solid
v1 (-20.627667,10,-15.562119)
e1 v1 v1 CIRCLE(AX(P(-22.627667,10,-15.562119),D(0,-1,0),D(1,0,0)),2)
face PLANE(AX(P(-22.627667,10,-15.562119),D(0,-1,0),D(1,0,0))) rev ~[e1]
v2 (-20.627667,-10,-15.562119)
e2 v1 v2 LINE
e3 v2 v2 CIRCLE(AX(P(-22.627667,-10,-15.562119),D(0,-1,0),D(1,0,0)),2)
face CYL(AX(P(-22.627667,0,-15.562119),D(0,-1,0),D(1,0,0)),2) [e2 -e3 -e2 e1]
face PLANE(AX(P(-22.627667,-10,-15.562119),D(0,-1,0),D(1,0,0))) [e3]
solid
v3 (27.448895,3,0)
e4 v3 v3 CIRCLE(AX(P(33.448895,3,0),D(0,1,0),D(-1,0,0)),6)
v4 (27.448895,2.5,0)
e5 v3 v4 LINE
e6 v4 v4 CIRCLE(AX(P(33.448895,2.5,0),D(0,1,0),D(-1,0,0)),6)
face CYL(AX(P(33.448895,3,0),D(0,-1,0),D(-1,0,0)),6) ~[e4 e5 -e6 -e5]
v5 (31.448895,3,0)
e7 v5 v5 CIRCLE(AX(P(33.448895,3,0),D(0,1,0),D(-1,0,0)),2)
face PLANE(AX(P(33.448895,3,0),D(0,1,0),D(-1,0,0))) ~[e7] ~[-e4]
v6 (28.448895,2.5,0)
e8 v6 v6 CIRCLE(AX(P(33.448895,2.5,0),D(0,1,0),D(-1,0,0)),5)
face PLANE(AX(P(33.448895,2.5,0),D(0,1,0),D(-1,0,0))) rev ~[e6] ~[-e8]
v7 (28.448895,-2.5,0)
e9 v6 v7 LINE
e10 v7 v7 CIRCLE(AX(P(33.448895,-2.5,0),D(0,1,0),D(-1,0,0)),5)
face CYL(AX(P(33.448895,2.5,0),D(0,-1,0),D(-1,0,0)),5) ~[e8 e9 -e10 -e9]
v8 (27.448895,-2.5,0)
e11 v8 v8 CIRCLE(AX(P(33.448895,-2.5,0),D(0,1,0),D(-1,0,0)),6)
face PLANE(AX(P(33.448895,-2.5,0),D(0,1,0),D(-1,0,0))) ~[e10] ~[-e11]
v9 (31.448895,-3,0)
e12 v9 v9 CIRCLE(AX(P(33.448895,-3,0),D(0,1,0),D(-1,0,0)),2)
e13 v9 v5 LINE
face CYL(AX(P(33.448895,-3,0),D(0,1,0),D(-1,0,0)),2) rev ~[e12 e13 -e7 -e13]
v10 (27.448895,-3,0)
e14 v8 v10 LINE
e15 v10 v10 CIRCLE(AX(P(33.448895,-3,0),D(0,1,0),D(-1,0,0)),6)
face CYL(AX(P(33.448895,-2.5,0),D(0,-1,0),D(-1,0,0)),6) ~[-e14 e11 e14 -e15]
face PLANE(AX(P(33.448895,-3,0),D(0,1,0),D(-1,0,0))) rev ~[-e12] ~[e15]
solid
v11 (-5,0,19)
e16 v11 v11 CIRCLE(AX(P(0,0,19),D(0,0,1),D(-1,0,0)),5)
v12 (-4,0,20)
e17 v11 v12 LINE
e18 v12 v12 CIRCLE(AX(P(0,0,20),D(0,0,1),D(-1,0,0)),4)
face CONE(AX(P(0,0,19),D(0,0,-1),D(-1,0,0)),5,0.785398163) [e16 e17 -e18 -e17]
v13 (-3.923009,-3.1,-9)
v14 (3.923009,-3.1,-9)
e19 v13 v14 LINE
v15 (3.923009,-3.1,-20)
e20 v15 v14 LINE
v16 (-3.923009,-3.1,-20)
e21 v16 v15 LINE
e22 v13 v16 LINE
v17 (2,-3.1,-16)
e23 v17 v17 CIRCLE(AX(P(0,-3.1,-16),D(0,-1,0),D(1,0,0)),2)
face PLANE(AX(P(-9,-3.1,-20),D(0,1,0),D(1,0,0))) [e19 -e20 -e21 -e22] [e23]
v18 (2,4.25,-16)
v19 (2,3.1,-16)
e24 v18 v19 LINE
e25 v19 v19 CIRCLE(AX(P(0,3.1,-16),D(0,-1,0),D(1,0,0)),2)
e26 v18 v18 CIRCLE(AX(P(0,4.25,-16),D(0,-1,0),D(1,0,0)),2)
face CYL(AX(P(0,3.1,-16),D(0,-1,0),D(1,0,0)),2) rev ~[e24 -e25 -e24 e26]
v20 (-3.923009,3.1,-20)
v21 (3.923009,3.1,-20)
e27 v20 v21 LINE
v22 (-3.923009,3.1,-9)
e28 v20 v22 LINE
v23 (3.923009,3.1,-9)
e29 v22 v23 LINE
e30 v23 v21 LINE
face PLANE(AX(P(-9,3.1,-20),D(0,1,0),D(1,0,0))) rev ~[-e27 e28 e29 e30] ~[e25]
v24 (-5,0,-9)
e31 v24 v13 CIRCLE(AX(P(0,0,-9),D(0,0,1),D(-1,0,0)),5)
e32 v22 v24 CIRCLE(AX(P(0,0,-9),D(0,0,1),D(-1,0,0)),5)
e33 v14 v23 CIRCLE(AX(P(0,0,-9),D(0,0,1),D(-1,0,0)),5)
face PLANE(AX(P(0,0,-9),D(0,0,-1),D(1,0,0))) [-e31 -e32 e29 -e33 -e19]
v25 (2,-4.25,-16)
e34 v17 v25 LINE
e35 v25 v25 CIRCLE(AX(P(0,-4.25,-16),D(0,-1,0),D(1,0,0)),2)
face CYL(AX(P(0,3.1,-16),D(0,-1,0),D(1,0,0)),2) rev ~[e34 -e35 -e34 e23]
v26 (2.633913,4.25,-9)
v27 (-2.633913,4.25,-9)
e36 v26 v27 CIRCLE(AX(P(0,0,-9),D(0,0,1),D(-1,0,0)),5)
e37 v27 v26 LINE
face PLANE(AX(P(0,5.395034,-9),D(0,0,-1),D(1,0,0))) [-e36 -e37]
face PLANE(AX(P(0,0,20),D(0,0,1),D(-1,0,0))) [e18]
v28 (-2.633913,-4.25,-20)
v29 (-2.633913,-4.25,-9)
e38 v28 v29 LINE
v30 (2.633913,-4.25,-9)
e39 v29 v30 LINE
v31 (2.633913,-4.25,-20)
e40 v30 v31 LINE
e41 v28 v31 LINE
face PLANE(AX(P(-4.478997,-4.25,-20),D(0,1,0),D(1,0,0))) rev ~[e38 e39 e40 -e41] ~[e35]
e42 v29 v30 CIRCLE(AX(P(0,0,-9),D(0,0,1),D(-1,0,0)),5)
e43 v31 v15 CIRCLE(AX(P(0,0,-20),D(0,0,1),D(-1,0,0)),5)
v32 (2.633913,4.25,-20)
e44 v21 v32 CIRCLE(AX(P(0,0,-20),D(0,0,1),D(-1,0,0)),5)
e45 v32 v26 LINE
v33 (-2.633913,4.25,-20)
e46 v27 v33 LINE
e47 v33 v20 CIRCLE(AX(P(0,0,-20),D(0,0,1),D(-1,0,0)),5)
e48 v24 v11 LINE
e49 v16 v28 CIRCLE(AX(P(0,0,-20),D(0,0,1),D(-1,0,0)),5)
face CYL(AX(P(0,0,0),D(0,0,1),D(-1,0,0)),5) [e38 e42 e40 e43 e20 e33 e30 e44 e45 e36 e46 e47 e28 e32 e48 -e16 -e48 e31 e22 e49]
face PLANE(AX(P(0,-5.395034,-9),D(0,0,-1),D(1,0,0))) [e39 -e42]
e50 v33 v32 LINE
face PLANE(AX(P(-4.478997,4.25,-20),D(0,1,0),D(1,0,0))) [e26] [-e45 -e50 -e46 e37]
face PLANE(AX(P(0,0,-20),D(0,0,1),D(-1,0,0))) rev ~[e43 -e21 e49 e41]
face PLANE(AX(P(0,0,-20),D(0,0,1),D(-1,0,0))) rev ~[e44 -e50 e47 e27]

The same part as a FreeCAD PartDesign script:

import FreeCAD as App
import Part
import Sketcher

V = App.Vector
Q = App.Units.Quantity


def edges_at(feature, points):
    """Names of the edges that pass closest to the given points."""
    edges = feature.Shape.Edges
    near = lambda p: min(range(len(edges)), key=lambda i: edges[i].distToShape(Part.Vertex(*p))[0])
    return sorted({f"Edge{near(p) + 1}" for p in points})


def add_polygon(sketch, points):
    """Adds a closed chain of lines whose ends are joined by coincident constraints."""
    first, n = sketch.GeometryCount, len(points)
    for a, b in zip(points, points[1:] + points[:1]):
        sketch.addGeometry(Part.LineSegment(App.Vector(*a, 0), App.Vector(*b, 0)), False)
    for i in range(n):
        sketch.addConstraint(Sketcher.Constraint("Coincident", first + i, 2, first + (i + 1) % n, 1))

doc = App.newDocument("Part")
params = doc.addObject("Spreadsheet::Sheet", "Params")
for row, (alias, value) in enumerate([
    ("sketch1_width", "5 mm"),
    ("sketch1_height", "40 mm"),
    ("revolution_angle", "360 deg"),
    ("sketch2_width", "18 mm"),
    ("sketch2_height", "6.2 mm"),
    ("pocket1_length", "11 mm"),
    ("sketch3_diameter", "4 mm"),
    ("pocket2_length", "25 mm"),
    ("chamfer_size", "1 mm"),
    ("sketch4_width", "18 mm"),
    ("sketch4_height", "6.2 mm"),
    ("pocket3_length", "10 mm"),
    ("sketch5_diameter", "4 mm"),
    ("pad1_length", "20 mm"),
    ("sketch6_width", "4 mm"),
    ("sketch6_width2", "1 mm"),
    ("sketch6_height", "6 mm"),
    ("sketch6_height2", "5 mm"),
    ("revolution2_angle", "360 deg"),
], start=1):
    params.set(f"A{row}", alias)
    params.set(f"B{row}", "=" + value)
    params.setAlias(f"B{row}", alias)

body = doc.addObject("PartDesign::Body", "Body")

# Sketch on XZ plane
sketch1 = doc.addObject("Sketcher::SketchObject", "Sketch")
body.addObject(sketch1)
sketch1.AttachmentSupport = (doc.XZ_Plane, [""])
sketch1.MapMode = "FlatFace"
add_polygon(sketch1, [(-5, 20), (-5, -20), (0, -20), (0, 20)])  # lines 0-3
sketch1.addConstraint([
    Sketcher.Constraint("Vertical", 0),
    Sketcher.Constraint("Horizontal", 1),
    Sketcher.Constraint("Vertical", 2),
    Sketcher.Constraint("Horizontal", 3),
    Sketcher.Constraint("Symmetric", 1, 2, 2, 2, -1, 1),
    Sketcher.Constraint("DistanceX", 1, 1, 1, 2, Q("5 mm")),
    Sketcher.Constraint("DistanceY", 0, 2, 0, 1, Q("40 mm")),
])
sketch1.setExpression("Constraints[9]", "Params.sketch1_width")
sketch1.setExpression("Constraints[10]", "Params.sketch1_height")
revolution = doc.addObject("PartDesign::Revolution", "Revolution")
body.addObject(revolution)
revolution.Profile = sketch1
revolution.ReferenceAxis = (sketch1, ["V_Axis"])
revolution.setExpression("Angle", "Params.revolution_angle")

# Sketch on XY plane
sketch2 = doc.addObject("Sketcher::SketchObject", "Sketch001")
body.addObject(sketch2)
sketch2.AttachmentSupport = (doc.XY_Plane, [""])
sketch2.MapMode = "FlatFace"
sketch2.AttachmentOffset = App.Placement(V(0, 0, -20), App.Rotation())
add_polygon(sketch2, [(-9, -3.1), (-9, 3.1), (9, 3.1), (9, -3.1)])  # lines 0-3
add_polygon(sketch2, [(-4.5, 4.2), (-4.5, 6.5), (4.5, 6.5), (4.5, 4.2)])  # lines 4-7
add_polygon(sketch2, [(-4.5, -6.5), (-4.5, -4.2), (4.5, -4.2), (4.5, -6.5)])  # lines 8-11
sketch2.addConstraint([
    Sketcher.Constraint("Vertical", 0),
    Sketcher.Constraint("Horizontal", 1),
    Sketcher.Constraint("Vertical", 2),
    Sketcher.Constraint("Horizontal", 3),
    Sketcher.Constraint("Vertical", 4),
    Sketcher.Constraint("Horizontal", 5),
    Sketcher.Constraint("Vertical", 6),
    Sketcher.Constraint("Horizontal", 7),
    Sketcher.Constraint("Vertical", 8),
    Sketcher.Constraint("Horizontal", 9),
    Sketcher.Constraint("Vertical", 10),
    Sketcher.Constraint("Horizontal", 11),
    Sketcher.Constraint("Symmetric", 0, 2, 2, 2, -1, 1),
    Sketcher.Constraint("Symmetric", 6, 2, 8, 2, -1, 1),
    Sketcher.Constraint("Symmetric", 4, 2, 10, 2, -1, 1),
    Sketcher.Constraint("Vertical", 7, 2, 8, 2),
    Sketcher.Constraint("DistanceX", 1, 1, 1, 2, Q("18 mm")),
    Sketcher.Constraint("DistanceY", 0, 1, 0, 2, Q("6.2 mm")),
    Sketcher.Constraint("DistanceY", 8, 2, 7, 2, Q("8.5 mm")),
    Sketcher.Constraint("DistanceX", 5, 1, 5, 2, Q("8.957994 mm")),
    Sketcher.Constraint("DistanceY", 4, 1, 4, 2, Q("2.290067 mm")),
])
sketch2.setExpression("Constraints[28]", "Params.sketch2_width")
sketch2.setExpression("Constraints[29]", "Params.sketch2_height")
pocket1 = doc.addObject("PartDesign::Pocket", "Pocket")
body.addObject(pocket1)
pocket1.Profile = sketch2
pocket1.setExpression("Length", "Params.pocket1_length")
pocket1.Reversed = True

# Sketch on XZ plane
sketch3 = doc.addObject("Sketcher::SketchObject", "Sketch002")
body.addObject(sketch3)
sketch3.AttachmentSupport = (doc.XZ_Plane, [""])
sketch3.MapMode = "FlatFace"
sketch3.AttachmentOffset = App.Placement(V(0, 0, -3.1), App.Rotation())
sketch3.addGeometry(Part.Circle(V(0, -16, 0), V(0, 0, 1), 2), False)
sketch3.addConstraint([
    Sketcher.Constraint("PointOnObject", 0, 3, -2),
    Sketcher.Constraint("Diameter", 0, Q("4 mm")),
    Sketcher.Constraint("DistanceY", 0, 3, -1, 1, Q("16 mm")),
])
sketch3.setExpression("Constraints[1]", "Params.sketch3_diameter")
pocket2 = doc.addObject("PartDesign::Pocket", "Pocket001")
body.addObject(pocket2)
pocket2.Profile = sketch3
pocket2.setExpression("Length", "Params.pocket2_length")
pocket2.Midplane = True
doc.recompute()

chamfer = doc.addObject("PartDesign::Chamfer", "Chamfer")
body.addObject(chamfer)
chamfer.Base = (pocket2, edges_at(pocket2, [(5, 0, 20)]))
chamfer.setExpression("Size", "Params.chamfer_size")

# Sketch on XY plane
sketch4 = doc.addObject("Sketcher::SketchObject", "Sketch003")
body.addObject(sketch4)
sketch4.AttachmentSupport = (doc.XY_Plane, [""])
sketch4.MapMode = "FlatFace"
sketch4.AttachmentOffset = App.Placement(V(0, 0, -20), App.Rotation())
add_polygon(sketch4, [(-9, -3.1), (-9, 3.1), (9, 3.1), (9, -3.1)])  # lines 0-3
add_polygon(sketch4, [(-4.5, 4.2), (-4.5, 6.5), (4.5, 6.5), (4.5, 4.2)])  # lines 4-7
add_polygon(sketch4, [(-4.5, -6.5), (-4.5, -4.2), (4.5, -4.2), (4.5, -6.5)])  # lines 8-11
sketch4.addConstraint([
    Sketcher.Constraint("Vertical", 0),
    Sketcher.Constraint("Horizontal", 1),
    Sketcher.Constraint("Vertical", 2),
    Sketcher.Constraint("Horizontal", 3),
    Sketcher.Constraint("Vertical", 4),
    Sketcher.Constraint("Horizontal", 5),
    Sketcher.Constraint("Vertical", 6),
    Sketcher.Constraint("Horizontal", 7),
    Sketcher.Constraint("Vertical", 8),
    Sketcher.Constraint("Horizontal", 9),
    Sketcher.Constraint("Vertical", 10),
    Sketcher.Constraint("Horizontal", 11),
    Sketcher.Constraint("Symmetric", 0, 2, 2, 2, -1, 1),
    Sketcher.Constraint("Symmetric", 6, 2, 8, 2, -1, 1),
    Sketcher.Constraint("Symmetric", 4, 2, 10, 2, -1, 1),
    Sketcher.Constraint("Vertical", 7, 2, 8, 2),
    Sketcher.Constraint("DistanceX", 1, 1, 1, 2, Q("18 mm")),
    Sketcher.Constraint("DistanceY", 0, 1, 0, 2, Q("6.2 mm")),
    Sketcher.Constraint("DistanceY", 8, 2, 7, 2, Q("8.5 mm")),
    Sketcher.Constraint("DistanceX", 5, 1, 5, 2, Q("8.957994 mm")),
    Sketcher.Constraint("DistanceY", 4, 1, 4, 2, Q("2.290067 mm")),
])
sketch4.setExpression("Constraints[28]", "Params.sketch4_width")
sketch4.setExpression("Constraints[29]", "Params.sketch4_height")
pocket3 = doc.addObject("PartDesign::Pocket", "Pocket002")
body.addObject(pocket3)
pocket3.Profile = sketch4
pocket3.setExpression("Length", "Params.pocket3_length")
pocket3.Reversed = True
body2 = doc.addObject("PartDesign::Body", "Body001")

# Sketch on XZ plane
sketch5 = doc.addObject("Sketcher::SketchObject", "Sketch004")
body2.addObject(sketch5)
sketch5.AttachmentSupport = (doc.getObject("XZ_Plane001"), [""])
sketch5.MapMode = "FlatFace"
sketch5.addGeometry(Part.Circle(V(-22.6, -15.6, 0), V(0, 0, 1), 2), False)
sketch5.addConstraint([
    Sketcher.Constraint("Diameter", 0, Q("4 mm")),
    Sketcher.Constraint("DistanceY", 0, 3, -1, 1, Q("15.562119 mm")),
    Sketcher.Constraint("DistanceX", 0, 3, -1, 1, Q("22.627667 mm")),
])
sketch5.setExpression("Constraints[0]", "Params.sketch5_diameter")
pad1 = doc.addObject("PartDesign::Pad", "Pad")
body2.addObject(pad1)
pad1.Profile = sketch5
pad1.setExpression("Length", "Params.pad1_length")
pad1.Midplane = True
body3 = doc.addObject("PartDesign::Body", "Body002")

# Sketch on XY plane
sketch6 = doc.addObject("Sketcher::SketchObject", "Sketch005")
body3.addObject(sketch6)
sketch6.AttachmentSupport = (doc.getObject("XY_Plane002"), [""])
sketch6.MapMode = "FlatFace"
add_polygon(sketch6, [(27.4, -3), (31.4, -3), (31.4, 3), (27.4, 3), (27.4, 2.5), (28.4, 2.5), (28.4, -2.5), (27.4, -2.5)])  # lines 0-7
sketch6.addGeometry(Part.LineSegment(V(33.4, -3, 0), V(33.4, 3, 0)), True)  # axis
sketch6.addConstraint([
    Sketcher.Constraint("Horizontal", 0),
    Sketcher.Constraint("Vertical", 1),
    Sketcher.Constraint("Horizontal", 2),
    Sketcher.Constraint("Vertical", 3),
    Sketcher.Constraint("Horizontal", 4),
    Sketcher.Constraint("Vertical", 5),
    Sketcher.Constraint("Horizontal", 6),
    Sketcher.Constraint("Vertical", 7),
    Sketcher.Constraint("Vertical", 8),
    Sketcher.Constraint("Symmetric", 3, 2, 6, 2, -1),
    Sketcher.Constraint("Horizontal", 7, 2, 8, 1),
    Sketcher.Constraint("Horizontal", 2, 2, 8, 2),
    Sketcher.Constraint("Equal", 3, 7),
    Sketcher.Constraint("DistanceX", 0, 1, 0, 2, Q("4 mm")),
    Sketcher.Constraint("DistanceX", 4, 1, 4, 2, Q("1 mm")),
    Sketcher.Constraint("DistanceY", 1, 1, 1, 2, Q("6 mm")),
    Sketcher.Constraint("DistanceY", 5, 2, 5, 1, Q("5 mm")),
    Sketcher.Constraint("DistanceX", 0, 2, 8, 1, Q("2 mm")),
    Sketcher.Constraint("DistanceX", -1, 1, 0, 2, Q("31.448895 mm")),
])
sketch6.setExpression("Constraints[21]", "Params.sketch6_width")
sketch6.setExpression("Constraints[22]", "Params.sketch6_width2")
sketch6.setExpression("Constraints[23]", "Params.sketch6_height")
sketch6.setExpression("Constraints[24]", "Params.sketch6_height2")
revolution2 = doc.addObject("PartDesign::Revolution", "Revolution001")
body3.addObject(revolution2)
revolution2.Profile = sketch6
revolution2.ReferenceAxis = (sketch6, ["Axis0"])
revolution2.setExpression("Angle", "Params.revolution2_angle")

doc.recompute()
